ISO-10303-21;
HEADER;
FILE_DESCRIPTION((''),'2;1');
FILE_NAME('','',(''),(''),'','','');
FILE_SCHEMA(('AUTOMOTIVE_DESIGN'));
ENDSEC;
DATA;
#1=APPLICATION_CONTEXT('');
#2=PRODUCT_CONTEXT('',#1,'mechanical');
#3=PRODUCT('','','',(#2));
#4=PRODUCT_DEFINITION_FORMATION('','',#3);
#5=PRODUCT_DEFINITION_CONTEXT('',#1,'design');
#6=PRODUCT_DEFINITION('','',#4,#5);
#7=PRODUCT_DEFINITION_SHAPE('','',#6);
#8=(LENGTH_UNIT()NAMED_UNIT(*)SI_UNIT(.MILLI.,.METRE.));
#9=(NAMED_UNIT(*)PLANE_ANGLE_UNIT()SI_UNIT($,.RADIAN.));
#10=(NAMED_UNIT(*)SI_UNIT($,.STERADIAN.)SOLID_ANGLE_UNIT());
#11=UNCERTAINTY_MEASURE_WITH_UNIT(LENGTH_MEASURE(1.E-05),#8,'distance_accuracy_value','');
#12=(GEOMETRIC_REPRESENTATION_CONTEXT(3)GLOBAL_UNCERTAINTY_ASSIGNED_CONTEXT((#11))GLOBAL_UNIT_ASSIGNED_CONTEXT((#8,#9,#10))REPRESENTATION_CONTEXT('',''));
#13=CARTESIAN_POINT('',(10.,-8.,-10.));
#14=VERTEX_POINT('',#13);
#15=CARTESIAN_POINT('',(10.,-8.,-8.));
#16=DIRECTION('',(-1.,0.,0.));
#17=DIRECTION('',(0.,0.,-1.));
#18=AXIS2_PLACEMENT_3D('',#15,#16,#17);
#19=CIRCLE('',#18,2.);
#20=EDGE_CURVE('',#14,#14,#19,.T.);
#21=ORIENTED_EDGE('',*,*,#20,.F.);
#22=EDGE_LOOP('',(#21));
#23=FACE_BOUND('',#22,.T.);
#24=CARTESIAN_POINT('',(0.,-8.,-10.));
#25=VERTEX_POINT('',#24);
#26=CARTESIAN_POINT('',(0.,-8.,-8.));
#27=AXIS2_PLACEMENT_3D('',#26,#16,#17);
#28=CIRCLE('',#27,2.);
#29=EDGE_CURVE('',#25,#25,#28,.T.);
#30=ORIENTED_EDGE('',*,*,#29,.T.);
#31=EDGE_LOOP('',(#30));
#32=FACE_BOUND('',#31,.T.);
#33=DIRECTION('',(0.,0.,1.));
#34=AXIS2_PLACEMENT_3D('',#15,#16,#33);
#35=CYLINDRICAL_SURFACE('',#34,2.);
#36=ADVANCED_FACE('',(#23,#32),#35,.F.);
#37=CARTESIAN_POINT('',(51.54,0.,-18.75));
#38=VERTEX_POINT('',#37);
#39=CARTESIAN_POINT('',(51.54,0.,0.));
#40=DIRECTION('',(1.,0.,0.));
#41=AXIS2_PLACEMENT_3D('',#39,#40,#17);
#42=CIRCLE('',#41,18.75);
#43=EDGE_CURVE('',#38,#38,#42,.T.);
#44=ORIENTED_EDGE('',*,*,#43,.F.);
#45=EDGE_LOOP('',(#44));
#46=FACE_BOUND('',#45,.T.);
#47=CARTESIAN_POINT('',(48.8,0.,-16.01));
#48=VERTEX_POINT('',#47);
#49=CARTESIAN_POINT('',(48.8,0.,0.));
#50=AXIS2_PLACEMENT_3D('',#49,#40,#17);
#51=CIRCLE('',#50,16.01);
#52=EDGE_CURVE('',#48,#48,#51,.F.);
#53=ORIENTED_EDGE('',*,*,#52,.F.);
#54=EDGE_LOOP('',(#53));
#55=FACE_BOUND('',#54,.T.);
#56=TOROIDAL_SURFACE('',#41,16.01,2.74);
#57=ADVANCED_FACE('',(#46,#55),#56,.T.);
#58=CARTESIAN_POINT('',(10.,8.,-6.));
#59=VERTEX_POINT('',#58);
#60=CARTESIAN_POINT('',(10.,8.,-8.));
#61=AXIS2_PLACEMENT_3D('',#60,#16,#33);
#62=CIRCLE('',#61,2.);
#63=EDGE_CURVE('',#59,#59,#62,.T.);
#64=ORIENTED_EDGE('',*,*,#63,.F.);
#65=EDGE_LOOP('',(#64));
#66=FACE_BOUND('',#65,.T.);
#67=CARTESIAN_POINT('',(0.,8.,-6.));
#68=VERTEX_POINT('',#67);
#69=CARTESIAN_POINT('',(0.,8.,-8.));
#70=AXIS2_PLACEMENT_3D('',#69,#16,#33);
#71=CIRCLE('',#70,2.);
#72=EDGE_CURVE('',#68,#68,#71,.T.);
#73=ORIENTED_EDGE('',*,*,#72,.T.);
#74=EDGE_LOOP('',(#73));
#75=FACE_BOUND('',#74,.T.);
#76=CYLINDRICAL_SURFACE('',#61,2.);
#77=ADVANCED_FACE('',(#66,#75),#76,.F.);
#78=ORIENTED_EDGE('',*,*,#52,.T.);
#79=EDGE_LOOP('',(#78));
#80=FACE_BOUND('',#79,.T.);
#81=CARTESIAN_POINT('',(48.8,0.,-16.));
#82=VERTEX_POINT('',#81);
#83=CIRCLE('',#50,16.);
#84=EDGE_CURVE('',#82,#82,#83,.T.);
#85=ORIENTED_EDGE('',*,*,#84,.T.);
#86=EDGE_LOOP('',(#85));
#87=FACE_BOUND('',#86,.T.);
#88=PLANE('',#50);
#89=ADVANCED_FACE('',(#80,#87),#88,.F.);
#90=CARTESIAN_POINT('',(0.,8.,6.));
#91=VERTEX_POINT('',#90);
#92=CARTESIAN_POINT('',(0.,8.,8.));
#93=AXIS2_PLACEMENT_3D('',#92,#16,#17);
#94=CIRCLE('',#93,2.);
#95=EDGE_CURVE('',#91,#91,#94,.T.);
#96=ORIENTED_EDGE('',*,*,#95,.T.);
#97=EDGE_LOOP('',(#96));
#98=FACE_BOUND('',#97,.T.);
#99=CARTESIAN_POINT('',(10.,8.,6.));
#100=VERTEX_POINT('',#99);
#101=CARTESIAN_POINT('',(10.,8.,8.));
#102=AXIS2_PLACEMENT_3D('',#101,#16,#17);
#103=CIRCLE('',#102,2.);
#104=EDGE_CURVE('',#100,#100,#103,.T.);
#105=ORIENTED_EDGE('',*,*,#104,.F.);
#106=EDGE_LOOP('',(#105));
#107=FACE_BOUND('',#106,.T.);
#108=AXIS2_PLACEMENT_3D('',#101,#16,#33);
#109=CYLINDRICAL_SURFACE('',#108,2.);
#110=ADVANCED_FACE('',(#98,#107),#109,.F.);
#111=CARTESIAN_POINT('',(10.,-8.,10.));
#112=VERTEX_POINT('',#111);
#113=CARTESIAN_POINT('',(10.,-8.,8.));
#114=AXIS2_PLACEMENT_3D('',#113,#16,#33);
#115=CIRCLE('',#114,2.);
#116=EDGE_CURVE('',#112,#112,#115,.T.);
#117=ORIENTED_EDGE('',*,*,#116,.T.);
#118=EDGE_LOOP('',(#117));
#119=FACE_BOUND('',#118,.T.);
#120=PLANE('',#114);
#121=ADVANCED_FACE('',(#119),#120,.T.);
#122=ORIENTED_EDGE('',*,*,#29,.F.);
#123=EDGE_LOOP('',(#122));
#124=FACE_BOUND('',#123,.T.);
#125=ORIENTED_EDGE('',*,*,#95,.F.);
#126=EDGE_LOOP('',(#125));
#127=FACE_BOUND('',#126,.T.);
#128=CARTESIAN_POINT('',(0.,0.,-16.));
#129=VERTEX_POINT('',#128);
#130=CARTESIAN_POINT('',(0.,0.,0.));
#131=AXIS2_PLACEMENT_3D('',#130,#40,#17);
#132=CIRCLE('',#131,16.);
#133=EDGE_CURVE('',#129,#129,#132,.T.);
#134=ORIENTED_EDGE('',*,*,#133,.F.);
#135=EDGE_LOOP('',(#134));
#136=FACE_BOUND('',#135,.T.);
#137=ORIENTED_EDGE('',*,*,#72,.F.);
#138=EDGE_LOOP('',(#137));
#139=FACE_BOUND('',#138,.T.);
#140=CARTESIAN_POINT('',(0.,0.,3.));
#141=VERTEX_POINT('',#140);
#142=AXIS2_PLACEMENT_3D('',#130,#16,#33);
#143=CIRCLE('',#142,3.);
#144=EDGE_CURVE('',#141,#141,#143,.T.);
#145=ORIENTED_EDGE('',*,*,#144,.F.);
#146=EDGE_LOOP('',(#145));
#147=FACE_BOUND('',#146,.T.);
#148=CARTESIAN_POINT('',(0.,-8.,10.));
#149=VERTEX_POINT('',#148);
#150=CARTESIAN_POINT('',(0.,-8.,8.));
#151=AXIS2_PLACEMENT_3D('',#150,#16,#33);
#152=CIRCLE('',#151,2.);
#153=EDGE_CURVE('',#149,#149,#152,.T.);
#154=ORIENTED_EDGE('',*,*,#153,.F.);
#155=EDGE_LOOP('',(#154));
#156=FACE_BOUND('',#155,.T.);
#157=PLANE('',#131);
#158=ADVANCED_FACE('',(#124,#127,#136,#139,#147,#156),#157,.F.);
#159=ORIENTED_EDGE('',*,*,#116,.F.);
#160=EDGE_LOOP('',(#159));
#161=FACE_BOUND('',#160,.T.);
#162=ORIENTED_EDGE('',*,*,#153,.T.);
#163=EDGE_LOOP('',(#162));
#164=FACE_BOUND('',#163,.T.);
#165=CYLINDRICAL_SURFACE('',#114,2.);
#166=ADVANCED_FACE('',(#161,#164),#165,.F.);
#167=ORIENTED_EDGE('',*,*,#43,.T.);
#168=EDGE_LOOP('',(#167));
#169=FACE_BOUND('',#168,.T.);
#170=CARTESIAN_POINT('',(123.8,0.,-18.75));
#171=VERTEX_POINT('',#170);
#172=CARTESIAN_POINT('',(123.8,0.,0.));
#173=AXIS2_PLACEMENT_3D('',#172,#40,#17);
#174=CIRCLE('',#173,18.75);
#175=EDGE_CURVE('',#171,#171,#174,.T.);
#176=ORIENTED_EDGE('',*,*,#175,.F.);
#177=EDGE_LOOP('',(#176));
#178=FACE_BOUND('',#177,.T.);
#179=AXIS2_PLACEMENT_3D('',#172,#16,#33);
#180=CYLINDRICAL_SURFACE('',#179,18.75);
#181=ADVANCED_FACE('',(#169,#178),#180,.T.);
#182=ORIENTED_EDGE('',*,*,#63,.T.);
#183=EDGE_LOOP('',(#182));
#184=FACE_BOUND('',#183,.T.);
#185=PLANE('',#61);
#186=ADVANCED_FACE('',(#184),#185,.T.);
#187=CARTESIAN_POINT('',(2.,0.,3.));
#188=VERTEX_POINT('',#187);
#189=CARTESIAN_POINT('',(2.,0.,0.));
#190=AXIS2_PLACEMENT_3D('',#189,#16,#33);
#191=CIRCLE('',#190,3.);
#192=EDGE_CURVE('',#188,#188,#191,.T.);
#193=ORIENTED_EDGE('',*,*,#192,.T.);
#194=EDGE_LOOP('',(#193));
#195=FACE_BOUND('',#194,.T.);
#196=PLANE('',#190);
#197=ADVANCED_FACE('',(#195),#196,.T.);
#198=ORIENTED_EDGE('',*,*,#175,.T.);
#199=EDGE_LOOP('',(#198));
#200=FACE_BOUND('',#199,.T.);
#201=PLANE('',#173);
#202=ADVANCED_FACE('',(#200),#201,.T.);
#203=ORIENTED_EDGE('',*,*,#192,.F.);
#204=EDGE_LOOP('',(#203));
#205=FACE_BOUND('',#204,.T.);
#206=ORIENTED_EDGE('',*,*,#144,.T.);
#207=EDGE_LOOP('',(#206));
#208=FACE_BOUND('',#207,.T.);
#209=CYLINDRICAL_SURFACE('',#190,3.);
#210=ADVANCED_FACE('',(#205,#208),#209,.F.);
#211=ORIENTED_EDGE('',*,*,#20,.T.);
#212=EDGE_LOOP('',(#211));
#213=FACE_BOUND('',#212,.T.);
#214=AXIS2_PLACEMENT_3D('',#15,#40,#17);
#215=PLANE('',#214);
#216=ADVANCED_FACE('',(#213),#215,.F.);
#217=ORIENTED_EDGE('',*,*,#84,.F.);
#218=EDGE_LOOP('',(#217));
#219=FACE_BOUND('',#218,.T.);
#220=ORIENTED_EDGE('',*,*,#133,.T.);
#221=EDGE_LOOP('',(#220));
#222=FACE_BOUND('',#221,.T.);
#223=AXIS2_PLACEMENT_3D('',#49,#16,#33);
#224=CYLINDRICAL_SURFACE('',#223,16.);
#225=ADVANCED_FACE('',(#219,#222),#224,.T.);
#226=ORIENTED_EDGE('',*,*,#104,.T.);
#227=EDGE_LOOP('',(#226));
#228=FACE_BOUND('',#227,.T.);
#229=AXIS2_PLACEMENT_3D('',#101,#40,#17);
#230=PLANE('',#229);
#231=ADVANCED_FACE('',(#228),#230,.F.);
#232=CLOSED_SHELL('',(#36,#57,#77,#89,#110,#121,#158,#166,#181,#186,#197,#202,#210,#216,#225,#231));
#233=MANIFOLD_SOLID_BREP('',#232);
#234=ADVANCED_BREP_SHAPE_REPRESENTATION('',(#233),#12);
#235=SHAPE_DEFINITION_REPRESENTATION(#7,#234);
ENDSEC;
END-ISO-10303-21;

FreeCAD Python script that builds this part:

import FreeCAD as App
import Part
import Sketcher

V = App.Vector
Q = App.Units.Quantity


def edges_at(feature, points):
    """Names of the edges that pass closest to the given points."""
    edges = feature.Shape.Edges
    near = lambda p: min(range(len(edges)), key=lambda i: edges[i].distToShape(Part.Vertex(*p))[0])
    return sorted({f"Edge{near(p) + 1}" for p in points})

doc = App.newDocument("Part")
body = doc.addObject("PartDesign::Body", "Body")

# Sketch on YZ plane
sketch1 = body.newObject("Sketcher::SketchObject", "Sketch")
sketch1.AttachmentSupport = (doc.getObject("YZ_Plane"), [""])
sketch1.MapMode = "FlatFace"
sketch1.addGeometry(Part.Circle(V(0, 0, 0), V(0, 0, 1), 16), False)
sketch1.addConstraint([
    Sketcher.Constraint("Coincident", 0, 3, -1, 1),
    Sketcher.Constraint("Diameter", 0, Q("32 mm")),
])
pad1 = body.newObject("PartDesign::Pad", "Pad")
pad1.Profile = sketch1
pad1.Length = 48.8

# Sketch on YZ plane
sketch2 = body.newObject("Sketcher::SketchObject", "Sketch001")
sketch2.AttachmentSupport = (doc.getObject("YZ_Plane"), [""])
sketch2.MapMode = "FlatFace"
sketch2.AttachmentOffset = App.Placement(V(0, 0, 48.8), App.Rotation())
sketch2.addGeometry(Part.Circle(V(0, 0, 0), V(0, 0, 1), 19), False)
sketch2.addConstraint([
    Sketcher.Constraint("Coincident", 0, 3, -1, 1),
    Sketcher.Constraint("Diameter", 0, Q("37.5 mm")),
])
pad2 = body.newObject("PartDesign::Pad", "Pad001")
pad2.Profile = sketch2
pad2.Length = 75
doc.recompute()

fillet = body.newObject("PartDesign::Fillet", "Fillet")
fillet.Base = (pad2, edges_at(pad2, [(48.8, 0, 18.75)]))
fillet.Radius = 2.74

# Sketch on YZ plane
sketch3 = body.newObject("Sketcher::SketchObject", "Sketch002")
sketch3.AttachmentSupport = (doc.getObject("YZ_Plane"), [""])
sketch3.MapMode = "FlatFace"
sketch3.addGeometry(Part.Circle(V(0, 0, 0), V(0, 0, 1), 3), False)
sketch3.addConstraint([
    Sketcher.Constraint("Coincident", 0, 3, -1, 1),
    Sketcher.Constraint("Diameter", 0, Q("6 mm")),
])
pocket1 = body.newObject("PartDesign::Pocket", "Pocket")
pocket1.Profile = sketch3
pocket1.Length = 2
pocket1.Reversed = True

# Sketch on YZ plane
sketch4 = body.newObject("Sketcher::SketchObject", "Sketch003")
sketch4.AttachmentSupport = (doc.getObject("YZ_Plane"), [""])
sketch4.MapMode = "FlatFace"
sketch4.addGeometry([
    Part.Circle(V(8, -8, 0), V(0, 0, 1), 2),
    Part.Circle(V(8, 8, 0), V(0, 0, 1), 2),
    Part.Circle(V(-8, 8, 0), V(0, 0, 1), 2),
    Part.Circle(V(-8, -8, 0), V(0, 0, 1), 2),
], False)
sketch4.addConstraint([
    Sketcher.Constraint("Equal", 0, 1),
    Sketcher.Constraint("Equal", 1, 2),
    Sketcher.Constraint("Equal", 2, 3),
    Sketcher.Constraint("Symmetric", 0, 3, 2, 3, -1, 1),
    Sketcher.Constraint("Symmetric", 1, 3, 3, 3, -1, 1),
    Sketcher.Constraint("Symmetric", 1, 3, 2, 3, -2),
    Sketcher.Constraint("Diameter", 0, Q("4 mm")),
    Sketcher.Constraint("DistanceX", -1, 1, 0, 3, Q("8 mm")),
    Sketcher.Constraint("DistanceY", 0, 3, -1, 1, Q("8 mm")),
])
pocket2 = body.newObject("PartDesign::Pocket", "Pocket001")
pocket2.Profile = sketch4
pocket2.Length = 10
pocket2.Reversed = True

doc.recompute()
